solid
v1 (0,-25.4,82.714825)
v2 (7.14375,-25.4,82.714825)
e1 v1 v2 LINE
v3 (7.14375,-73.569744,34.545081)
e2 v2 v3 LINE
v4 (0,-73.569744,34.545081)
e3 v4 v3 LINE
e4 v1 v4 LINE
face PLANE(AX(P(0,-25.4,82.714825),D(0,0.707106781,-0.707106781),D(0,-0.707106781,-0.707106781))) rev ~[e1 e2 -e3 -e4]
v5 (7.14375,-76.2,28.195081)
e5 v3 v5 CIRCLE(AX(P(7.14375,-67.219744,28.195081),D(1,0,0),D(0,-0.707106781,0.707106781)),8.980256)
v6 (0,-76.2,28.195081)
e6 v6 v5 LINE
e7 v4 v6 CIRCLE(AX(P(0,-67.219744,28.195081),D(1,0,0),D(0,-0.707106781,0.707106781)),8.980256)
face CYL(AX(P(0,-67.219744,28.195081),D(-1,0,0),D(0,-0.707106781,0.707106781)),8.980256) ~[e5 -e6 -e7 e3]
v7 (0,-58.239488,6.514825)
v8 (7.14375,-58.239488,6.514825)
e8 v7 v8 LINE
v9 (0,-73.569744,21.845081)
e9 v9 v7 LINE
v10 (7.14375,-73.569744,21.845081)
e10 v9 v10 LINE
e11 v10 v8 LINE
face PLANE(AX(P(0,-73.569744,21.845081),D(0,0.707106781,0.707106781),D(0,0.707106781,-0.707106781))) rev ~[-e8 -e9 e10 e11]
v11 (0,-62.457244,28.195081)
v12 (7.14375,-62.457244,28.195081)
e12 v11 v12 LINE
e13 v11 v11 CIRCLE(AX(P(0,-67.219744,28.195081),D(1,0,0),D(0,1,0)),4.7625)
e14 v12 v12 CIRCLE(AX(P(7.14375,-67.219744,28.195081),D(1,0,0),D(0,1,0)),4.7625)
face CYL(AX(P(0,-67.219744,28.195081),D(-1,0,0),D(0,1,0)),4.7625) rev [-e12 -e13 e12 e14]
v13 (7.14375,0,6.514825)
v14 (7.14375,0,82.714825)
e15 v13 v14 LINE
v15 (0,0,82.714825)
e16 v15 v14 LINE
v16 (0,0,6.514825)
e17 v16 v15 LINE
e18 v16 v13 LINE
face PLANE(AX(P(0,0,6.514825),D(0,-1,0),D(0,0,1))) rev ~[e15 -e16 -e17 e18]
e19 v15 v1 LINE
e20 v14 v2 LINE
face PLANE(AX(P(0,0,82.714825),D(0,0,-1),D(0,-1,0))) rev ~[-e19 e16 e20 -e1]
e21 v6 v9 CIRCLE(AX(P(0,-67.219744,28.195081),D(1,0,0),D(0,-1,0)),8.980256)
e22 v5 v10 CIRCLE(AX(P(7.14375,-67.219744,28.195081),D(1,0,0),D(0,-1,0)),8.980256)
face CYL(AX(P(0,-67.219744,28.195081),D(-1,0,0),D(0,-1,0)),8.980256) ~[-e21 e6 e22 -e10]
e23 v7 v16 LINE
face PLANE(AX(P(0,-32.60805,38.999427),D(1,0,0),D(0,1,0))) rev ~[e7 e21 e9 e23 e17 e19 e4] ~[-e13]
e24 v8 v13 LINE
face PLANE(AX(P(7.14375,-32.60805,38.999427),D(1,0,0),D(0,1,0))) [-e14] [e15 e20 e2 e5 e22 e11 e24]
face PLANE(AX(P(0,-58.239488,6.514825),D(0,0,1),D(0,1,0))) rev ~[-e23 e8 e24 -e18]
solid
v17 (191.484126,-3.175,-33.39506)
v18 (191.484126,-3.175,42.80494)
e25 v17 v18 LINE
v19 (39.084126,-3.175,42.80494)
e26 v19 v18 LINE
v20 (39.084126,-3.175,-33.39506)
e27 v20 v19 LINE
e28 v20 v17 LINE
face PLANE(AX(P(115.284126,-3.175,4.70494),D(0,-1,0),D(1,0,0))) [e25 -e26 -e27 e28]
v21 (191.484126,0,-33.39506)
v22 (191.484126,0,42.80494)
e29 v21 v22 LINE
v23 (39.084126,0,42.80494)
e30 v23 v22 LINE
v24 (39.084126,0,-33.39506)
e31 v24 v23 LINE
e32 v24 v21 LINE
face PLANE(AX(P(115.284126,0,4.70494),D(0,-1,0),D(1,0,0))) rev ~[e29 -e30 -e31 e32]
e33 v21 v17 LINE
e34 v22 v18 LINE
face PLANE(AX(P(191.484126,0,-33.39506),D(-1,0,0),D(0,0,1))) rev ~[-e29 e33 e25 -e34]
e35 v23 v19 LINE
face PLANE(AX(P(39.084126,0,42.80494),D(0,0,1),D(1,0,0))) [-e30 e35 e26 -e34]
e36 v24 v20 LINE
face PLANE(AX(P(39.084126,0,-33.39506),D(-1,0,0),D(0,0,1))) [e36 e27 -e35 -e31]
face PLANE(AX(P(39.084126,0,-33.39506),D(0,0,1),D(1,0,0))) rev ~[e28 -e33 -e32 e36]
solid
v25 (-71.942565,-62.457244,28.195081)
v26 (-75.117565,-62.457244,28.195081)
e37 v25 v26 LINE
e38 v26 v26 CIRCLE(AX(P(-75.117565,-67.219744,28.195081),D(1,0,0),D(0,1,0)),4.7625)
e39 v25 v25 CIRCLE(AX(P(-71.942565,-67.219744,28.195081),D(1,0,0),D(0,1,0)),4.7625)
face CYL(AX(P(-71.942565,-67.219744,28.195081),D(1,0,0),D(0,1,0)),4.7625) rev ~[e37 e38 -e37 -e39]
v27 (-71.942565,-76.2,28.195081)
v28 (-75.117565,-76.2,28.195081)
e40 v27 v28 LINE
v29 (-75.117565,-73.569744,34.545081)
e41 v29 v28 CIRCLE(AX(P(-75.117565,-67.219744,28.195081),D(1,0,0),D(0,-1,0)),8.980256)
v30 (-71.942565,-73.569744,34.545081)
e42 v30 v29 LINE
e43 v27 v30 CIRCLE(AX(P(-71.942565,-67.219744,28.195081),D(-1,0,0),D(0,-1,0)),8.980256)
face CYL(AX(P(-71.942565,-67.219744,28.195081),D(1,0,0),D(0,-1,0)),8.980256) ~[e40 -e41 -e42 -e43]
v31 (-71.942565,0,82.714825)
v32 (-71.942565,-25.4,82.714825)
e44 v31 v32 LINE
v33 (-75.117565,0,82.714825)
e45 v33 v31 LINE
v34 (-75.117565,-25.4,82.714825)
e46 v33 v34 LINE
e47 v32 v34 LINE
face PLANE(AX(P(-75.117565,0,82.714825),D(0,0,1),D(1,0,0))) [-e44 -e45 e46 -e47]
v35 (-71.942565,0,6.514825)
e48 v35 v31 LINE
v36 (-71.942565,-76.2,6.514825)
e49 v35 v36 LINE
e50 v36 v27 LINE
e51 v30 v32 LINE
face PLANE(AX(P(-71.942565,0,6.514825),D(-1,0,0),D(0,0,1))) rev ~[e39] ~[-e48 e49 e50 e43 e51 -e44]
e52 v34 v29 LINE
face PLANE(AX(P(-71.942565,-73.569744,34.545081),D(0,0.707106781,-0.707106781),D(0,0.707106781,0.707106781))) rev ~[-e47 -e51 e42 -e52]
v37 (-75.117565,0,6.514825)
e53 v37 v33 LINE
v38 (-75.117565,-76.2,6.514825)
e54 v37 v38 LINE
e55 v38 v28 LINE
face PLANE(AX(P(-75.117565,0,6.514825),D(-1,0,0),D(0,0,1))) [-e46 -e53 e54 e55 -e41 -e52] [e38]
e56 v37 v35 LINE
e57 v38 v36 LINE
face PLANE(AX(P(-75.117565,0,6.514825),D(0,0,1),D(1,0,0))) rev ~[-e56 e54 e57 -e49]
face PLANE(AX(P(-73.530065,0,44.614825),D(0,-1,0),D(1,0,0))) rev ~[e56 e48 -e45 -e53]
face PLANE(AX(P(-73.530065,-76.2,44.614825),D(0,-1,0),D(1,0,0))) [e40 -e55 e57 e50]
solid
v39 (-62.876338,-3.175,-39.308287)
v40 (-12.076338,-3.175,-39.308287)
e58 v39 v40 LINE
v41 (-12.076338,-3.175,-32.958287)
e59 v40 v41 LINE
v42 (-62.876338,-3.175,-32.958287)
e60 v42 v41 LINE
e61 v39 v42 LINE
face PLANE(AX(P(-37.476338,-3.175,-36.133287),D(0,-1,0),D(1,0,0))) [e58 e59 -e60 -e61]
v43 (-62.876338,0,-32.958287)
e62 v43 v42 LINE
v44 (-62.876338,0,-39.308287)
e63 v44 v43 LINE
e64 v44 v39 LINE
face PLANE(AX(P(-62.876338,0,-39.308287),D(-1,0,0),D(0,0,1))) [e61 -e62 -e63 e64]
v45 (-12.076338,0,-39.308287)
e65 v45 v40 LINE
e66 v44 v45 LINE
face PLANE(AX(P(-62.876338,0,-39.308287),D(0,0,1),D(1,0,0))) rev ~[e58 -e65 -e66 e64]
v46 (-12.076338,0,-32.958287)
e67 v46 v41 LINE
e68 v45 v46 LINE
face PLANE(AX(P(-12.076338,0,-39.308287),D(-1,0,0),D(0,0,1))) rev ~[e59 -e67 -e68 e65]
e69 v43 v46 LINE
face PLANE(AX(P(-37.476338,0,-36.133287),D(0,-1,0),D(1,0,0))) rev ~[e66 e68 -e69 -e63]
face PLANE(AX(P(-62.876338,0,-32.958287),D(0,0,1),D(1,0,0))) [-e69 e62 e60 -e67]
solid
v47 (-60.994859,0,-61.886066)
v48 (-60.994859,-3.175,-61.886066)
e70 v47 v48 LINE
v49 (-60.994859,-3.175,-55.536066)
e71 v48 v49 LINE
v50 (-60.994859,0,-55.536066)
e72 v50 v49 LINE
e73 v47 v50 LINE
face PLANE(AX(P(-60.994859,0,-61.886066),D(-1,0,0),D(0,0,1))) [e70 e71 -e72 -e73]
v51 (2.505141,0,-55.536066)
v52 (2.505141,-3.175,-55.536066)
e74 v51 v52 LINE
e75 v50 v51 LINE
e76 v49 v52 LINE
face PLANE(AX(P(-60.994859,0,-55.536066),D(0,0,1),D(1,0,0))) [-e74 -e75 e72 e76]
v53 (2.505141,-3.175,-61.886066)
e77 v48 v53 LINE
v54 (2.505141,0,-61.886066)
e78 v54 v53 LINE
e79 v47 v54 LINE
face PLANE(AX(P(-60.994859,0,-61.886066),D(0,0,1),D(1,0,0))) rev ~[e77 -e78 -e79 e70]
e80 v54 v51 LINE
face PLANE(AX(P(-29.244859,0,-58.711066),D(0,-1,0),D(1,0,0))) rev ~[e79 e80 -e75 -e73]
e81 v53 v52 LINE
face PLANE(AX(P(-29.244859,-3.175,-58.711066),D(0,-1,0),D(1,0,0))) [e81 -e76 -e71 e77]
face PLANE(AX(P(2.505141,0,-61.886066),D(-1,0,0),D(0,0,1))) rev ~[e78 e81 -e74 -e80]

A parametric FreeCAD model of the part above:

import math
import FreeCAD as App
import Part
import Sketcher
from FreeCAD import Vector
Q = App.Units.Quantity


def add_polygon(sketch, points):
    """Adds a closed chain of lines whose ends are joined by coincident constraints."""
    first, n = sketch.GeometryCount, len(points)
    for a, b in zip(points, points[1:] + points[:1]):
        sketch.addGeometry(Part.LineSegment(App.Vector(*a, 0), App.Vector(*b, 0)), False)
    for i in range(n):
        sketch.addConstraint(Sketcher.Constraint("Coincident", first + i, 2, first + (i + 1) % n, 1))

doc = App.newDocument("Part")
body = doc.addObject("PartDesign::Body", "Body")

sketch1 = doc.addObject("Sketcher::SketchObject", "Sketch")
body.addObject(sketch1)
sketch1.AttachmentSupport = (doc.XZ_Plane, [""])
sketch1.MapMode = "FlatFace"
add_polygon(sketch1, [(-75.1, 82.7), (-75.1, 6.5), (-71.9, 6.5), (-71.9, 82.7)])
sketch1.addConstraint([
    Sketcher.Constraint("Vertical", 0),
    Sketcher.Constraint("Horizontal", 1),
    Sketcher.Constraint("Vertical", 2),
    Sketcher.Constraint("Horizontal", 3),
    Sketcher.Constraint("DistanceY", 0, 2, 0, 1, Q("3 in")),
    Sketcher.Constraint("DistanceX", 1, 1, 1, 2, Q("0.125 in")),
    Sketcher.Constraint("DistanceX", 0, 2, -1, 1, Q("75.117565 mm")),
    Sketcher.Constraint("DistanceY", -1, 1, 0, 2, Q("6.514825 mm")),
])
pad1 = doc.addObject("PartDesign::Pad", "Pad")
body.addObject(pad1)
pad1.Profile = sketch1
pad1.Length = Q("3 in")

sketch2 = doc.addObject("Sketcher::SketchObject", "Sketch001")
body.addObject(sketch2)
sketch2.AttachmentSupport = (doc.YZ_Plane, [""])
sketch2.MapMode = "FlatFace"
sketch2.AttachmentOffset = App.Placement(Vector(0, 0, -71.942565), App.Rotation())
sketch2.addGeometry([
    Part.Circle(Vector(-67.2, 28.2, 0), Vector(0, 0, 1), 4.8),
    Part.LineSegment(Vector(-25.4, 82.7, 0), Vector(-76.2, 82.7, 0)),
    Part.LineSegment(Vector(-76.2, 82.7, 0), Vector(-76.2, 28.2, 0)),
    Part.ArcOfCircle(Part.Circle(Vector(-67.2, 28.2, 0), Vector(0, 0, 1), 9), math.radians(135), math.radians(180)),
    Part.LineSegment(Vector(-73.6, 34.5, 0), Vector(-25.4, 82.7, 0)),
], False)
sketch2.addConstraint([
    Sketcher.Constraint("Coincident", 1, 2, 2, 1),
    Sketcher.Constraint("Tangent", 2, 2, 3, 2),
    Sketcher.Constraint("Tangent", 3, 1, 4, 1),
    Sketcher.Constraint("Coincident", 4, 2, 1, 1),
    Sketcher.Constraint("Horizontal", 1),
    Sketcher.Constraint("Vertical", 2),
    Sketcher.Constraint("Coincident", 3, 3, 0, 3),
    Sketcher.Constraint("DistanceX", 1, 2, 1, 1, Q("2 in")),
    Sketcher.Constraint("Diameter", 0, Q("0.375 in")),
    Sketcher.Constraint("DistanceX", 1, 2, -1, 1, Q("3 in")),
    Sketcher.Constraint("Angle", 4, Q("45 deg")),
    Sketcher.Constraint("DistanceY", 2, 2, 3, 1, Q("0.25 in")),
    Sketcher.Constraint("DistanceY", -1, 1, 0, 3, Q("28.195081 mm")),
])
pocket1 = doc.addObject("PartDesign::Pocket", "Pocket")
body.addObject(pocket1)
pocket1.Profile = sketch2
pocket1.Type = "ThroughAll"
body2 = doc.addObject("PartDesign::Body", "Body001")

sketch3 = doc.addObject("Sketcher::SketchObject", "Sketch002")
body2.addObject(sketch3)
sketch3.AttachmentSupport = (doc.getObject("YZ_Plane001"), [""])
sketch3.MapMode = "FlatFace"
sketch3.addGeometry([
    Part.LineSegment(Vector(-25.4, 82.7, 0), Vector(-73.6, 34.5, 0)),
    Part.ArcOfCircle(Part.Circle(Vector(-67.2, 28.2, 0), Vector(0, 0, 1), 9), math.radians(135), math.radians(180)),
    Part.ArcOfCircle(Part.Circle(Vector(-67.2, 28.2, 0), Vector(0, 0, 1), 9), math.radians(180), math.radians(225)),
    Part.LineSegment(Vector(-73.6, 21.8, 0), Vector(-58.2, 6.5, 0)),
    Part.LineSegment(Vector(-58.2, 6.5, 0), Vector(0, 6.5, 0)),
    Part.LineSegment(Vector(0, 6.5, 0), Vector(0, 82.7, 0)),
    Part.LineSegment(Vector(0, 82.7, 0), Vector(-25.4, 82.7, 0)),
    Part.Circle(Vector(-67.2, 28.2, 0), Vector(0, 0, 1), 4.8),
], False)
sketch3.addConstraint([
    Sketcher.Constraint("Tangent", 0, 2, 1, 1),
    Sketcher.Constraint("Tangent", 1, 2, 2, 1),
    Sketcher.Constraint("Tangent", 2, 2, 3, 1),
    Sketcher.Constraint("Coincident", 3, 2, 4, 1),
    Sketcher.Constraint("Coincident", 4, 2, 5, 1),
    Sketcher.Constraint("Coincident", 5, 2, 6, 1),
    Sketcher.Constraint("Coincident", 6, 2, 0, 1),
    Sketcher.Constraint("Horizontal", 4),
    Sketcher.Constraint("Vertical", 5),
    Sketcher.Constraint("Horizontal", 6),
    Sketcher.Constraint("Coincident", 7, 3, 1, 3),
    Sketcher.Constraint("Equal", 1, 2),
    Sketcher.Constraint("PointOnObject", 4, 2, -2),
    Sketcher.Constraint("Perpendicular", 0, 3),
    Sketcher.Constraint("Horizontal", 7, 3, 1, 2),
    Sketcher.Constraint("Vertical", 0, 2, 2, 2),
    Sketcher.Constraint("DistanceX", 6, 2, 6, 1, Q("1 in")),
    Sketcher.Constraint("DistanceY", 5, 1, 5, 2, Q("3 in")),
    Sketcher.Constraint("Diameter", 7, Q("0.375 in")),
    Sketcher.Constraint("DistanceX", 1, 2, -1, 1, Q("3 in")),
    Sketcher.Constraint("DistanceY", 2, 2, 0, 2, Q("0.5 in")),
    Sketcher.Constraint("DistanceY", -1, 1, 1, 3, Q("28.195081 mm")),
])
pad2 = doc.addObject("PartDesign::Pad", "Pad001")
body2.addObject(pad2)
pad2.Profile = sketch3
pad2.Length = Q("0.28125 in")
body3 = doc.addObject("PartDesign::Body", "Body002")

sketch4 = doc.addObject("Sketcher::SketchObject", "Sketch003")
body3.addObject(sketch4)
sketch4.AttachmentSupport = (doc.getObject("XZ_Plane002"), [""])
sketch4.MapMode = "FlatFace"
add_polygon(sketch4, [(-63, -33), (-63, -39), (-12, -39), (-12, -33)])
sketch4.addConstraint([
    Sketcher.Constraint("Vertical", 0),
    Sketcher.Constraint("Horizontal", 1),
    Sketcher.Constraint("Vertical", 2),
    Sketcher.Constraint("Horizontal", 3),
    Sketcher.Constraint("DistanceX", 1, 1, 1, 2, Q("2 in")),
    Sketcher.Constraint("DistanceY", 0, 2, 0, 1, Q("0.25 in")),
    Sketcher.Constraint("DistanceX", 0, 2, -1, 1, Q("62.876338 mm")),
    Sketcher.Constraint("DistanceY", 0, 2, -1, 1, Q("39.308287 mm")),
])
pad3 = doc.addObject("PartDesign::Pad", "Pad002")
body3.addObject(pad3)
pad3.Profile = sketch4
pad3.Length = Q("0.125 in")
body4 = doc.addObject("PartDesign::Body", "Body003")

sketch5 = doc.addObject("Sketcher::SketchObject", "Sketch004")
body4.addObject(sketch5)
sketch5.AttachmentSupport = (doc.getObject("XZ_Plane003"), [""])
sketch5.MapMode = "FlatFace"
add_polygon(sketch5, [(-61, -56), (-61, -62), (3, -62), (3, -56)])
sketch5.addConstraint([
    Sketcher.Constraint("Vertical", 0),
    Sketcher.Constraint("Horizontal", 1),
    Sketcher.Constraint("Vertical", 2),
    Sketcher.Constraint("Horizontal", 3),
    Sketcher.Constraint("DistanceX", 1, 1, 1, 2, Q("2.5 in")),
    Sketcher.Constraint("DistanceY", 0, 2, 0, 1, Q("0.25 in")),
    Sketcher.Constraint("DistanceX", 0, 2, -1, 1, Q("60.994859 mm")),
    Sketcher.Constraint("DistanceY", 0, 2, -1, 1, Q("61.886066 mm")),
])
pad4 = doc.addObject("PartDesign::Pad", "Pad003")
body4.addObject(pad4)
pad4.Profile = sketch5
pad4.Length = Q("0.125 in")
body5 = doc.addObject("PartDesign::Body", "Body004")

sketch6 = doc.addObject("Sketcher::SketchObject", "Sketch005")
body5.addObject(sketch6)
sketch6.AttachmentSupport = (doc.getObject("XZ_Plane004"), [""])
sketch6.MapMode = "FlatFace"
add_polygon(sketch6, [(39, 43), (39, -33), (191, -33), (191, 43)])
sketch6.addConstraint([
    Sketcher.Constraint("Vertical", 0),
    Sketcher.Constraint("Horizontal", 1),
    Sketcher.Constraint("Vertical", 2),
    Sketcher.Constraint("Horizontal", 3),
    Sketcher.Constraint("DistanceX", 1, 1, 1, 2, Q("6 in")),
    Sketcher.Constraint("DistanceY", 0, 2, 0, 1, Q("3 in")),
    Sketcher.Constraint("DistanceY", 0, 2, -1, 1, Q("33.39506 mm")),
    Sketcher.Constraint("DistanceX", -1, 1, 0, 2, Q("39.084126 mm")),
])
pad5 = doc.addObject("PartDesign::Pad", "Pad004")
body5.addObject(pad5)
pad5.Profile = sketch6
pad5.Length = Q("0.125 in")

doc.recompute()
